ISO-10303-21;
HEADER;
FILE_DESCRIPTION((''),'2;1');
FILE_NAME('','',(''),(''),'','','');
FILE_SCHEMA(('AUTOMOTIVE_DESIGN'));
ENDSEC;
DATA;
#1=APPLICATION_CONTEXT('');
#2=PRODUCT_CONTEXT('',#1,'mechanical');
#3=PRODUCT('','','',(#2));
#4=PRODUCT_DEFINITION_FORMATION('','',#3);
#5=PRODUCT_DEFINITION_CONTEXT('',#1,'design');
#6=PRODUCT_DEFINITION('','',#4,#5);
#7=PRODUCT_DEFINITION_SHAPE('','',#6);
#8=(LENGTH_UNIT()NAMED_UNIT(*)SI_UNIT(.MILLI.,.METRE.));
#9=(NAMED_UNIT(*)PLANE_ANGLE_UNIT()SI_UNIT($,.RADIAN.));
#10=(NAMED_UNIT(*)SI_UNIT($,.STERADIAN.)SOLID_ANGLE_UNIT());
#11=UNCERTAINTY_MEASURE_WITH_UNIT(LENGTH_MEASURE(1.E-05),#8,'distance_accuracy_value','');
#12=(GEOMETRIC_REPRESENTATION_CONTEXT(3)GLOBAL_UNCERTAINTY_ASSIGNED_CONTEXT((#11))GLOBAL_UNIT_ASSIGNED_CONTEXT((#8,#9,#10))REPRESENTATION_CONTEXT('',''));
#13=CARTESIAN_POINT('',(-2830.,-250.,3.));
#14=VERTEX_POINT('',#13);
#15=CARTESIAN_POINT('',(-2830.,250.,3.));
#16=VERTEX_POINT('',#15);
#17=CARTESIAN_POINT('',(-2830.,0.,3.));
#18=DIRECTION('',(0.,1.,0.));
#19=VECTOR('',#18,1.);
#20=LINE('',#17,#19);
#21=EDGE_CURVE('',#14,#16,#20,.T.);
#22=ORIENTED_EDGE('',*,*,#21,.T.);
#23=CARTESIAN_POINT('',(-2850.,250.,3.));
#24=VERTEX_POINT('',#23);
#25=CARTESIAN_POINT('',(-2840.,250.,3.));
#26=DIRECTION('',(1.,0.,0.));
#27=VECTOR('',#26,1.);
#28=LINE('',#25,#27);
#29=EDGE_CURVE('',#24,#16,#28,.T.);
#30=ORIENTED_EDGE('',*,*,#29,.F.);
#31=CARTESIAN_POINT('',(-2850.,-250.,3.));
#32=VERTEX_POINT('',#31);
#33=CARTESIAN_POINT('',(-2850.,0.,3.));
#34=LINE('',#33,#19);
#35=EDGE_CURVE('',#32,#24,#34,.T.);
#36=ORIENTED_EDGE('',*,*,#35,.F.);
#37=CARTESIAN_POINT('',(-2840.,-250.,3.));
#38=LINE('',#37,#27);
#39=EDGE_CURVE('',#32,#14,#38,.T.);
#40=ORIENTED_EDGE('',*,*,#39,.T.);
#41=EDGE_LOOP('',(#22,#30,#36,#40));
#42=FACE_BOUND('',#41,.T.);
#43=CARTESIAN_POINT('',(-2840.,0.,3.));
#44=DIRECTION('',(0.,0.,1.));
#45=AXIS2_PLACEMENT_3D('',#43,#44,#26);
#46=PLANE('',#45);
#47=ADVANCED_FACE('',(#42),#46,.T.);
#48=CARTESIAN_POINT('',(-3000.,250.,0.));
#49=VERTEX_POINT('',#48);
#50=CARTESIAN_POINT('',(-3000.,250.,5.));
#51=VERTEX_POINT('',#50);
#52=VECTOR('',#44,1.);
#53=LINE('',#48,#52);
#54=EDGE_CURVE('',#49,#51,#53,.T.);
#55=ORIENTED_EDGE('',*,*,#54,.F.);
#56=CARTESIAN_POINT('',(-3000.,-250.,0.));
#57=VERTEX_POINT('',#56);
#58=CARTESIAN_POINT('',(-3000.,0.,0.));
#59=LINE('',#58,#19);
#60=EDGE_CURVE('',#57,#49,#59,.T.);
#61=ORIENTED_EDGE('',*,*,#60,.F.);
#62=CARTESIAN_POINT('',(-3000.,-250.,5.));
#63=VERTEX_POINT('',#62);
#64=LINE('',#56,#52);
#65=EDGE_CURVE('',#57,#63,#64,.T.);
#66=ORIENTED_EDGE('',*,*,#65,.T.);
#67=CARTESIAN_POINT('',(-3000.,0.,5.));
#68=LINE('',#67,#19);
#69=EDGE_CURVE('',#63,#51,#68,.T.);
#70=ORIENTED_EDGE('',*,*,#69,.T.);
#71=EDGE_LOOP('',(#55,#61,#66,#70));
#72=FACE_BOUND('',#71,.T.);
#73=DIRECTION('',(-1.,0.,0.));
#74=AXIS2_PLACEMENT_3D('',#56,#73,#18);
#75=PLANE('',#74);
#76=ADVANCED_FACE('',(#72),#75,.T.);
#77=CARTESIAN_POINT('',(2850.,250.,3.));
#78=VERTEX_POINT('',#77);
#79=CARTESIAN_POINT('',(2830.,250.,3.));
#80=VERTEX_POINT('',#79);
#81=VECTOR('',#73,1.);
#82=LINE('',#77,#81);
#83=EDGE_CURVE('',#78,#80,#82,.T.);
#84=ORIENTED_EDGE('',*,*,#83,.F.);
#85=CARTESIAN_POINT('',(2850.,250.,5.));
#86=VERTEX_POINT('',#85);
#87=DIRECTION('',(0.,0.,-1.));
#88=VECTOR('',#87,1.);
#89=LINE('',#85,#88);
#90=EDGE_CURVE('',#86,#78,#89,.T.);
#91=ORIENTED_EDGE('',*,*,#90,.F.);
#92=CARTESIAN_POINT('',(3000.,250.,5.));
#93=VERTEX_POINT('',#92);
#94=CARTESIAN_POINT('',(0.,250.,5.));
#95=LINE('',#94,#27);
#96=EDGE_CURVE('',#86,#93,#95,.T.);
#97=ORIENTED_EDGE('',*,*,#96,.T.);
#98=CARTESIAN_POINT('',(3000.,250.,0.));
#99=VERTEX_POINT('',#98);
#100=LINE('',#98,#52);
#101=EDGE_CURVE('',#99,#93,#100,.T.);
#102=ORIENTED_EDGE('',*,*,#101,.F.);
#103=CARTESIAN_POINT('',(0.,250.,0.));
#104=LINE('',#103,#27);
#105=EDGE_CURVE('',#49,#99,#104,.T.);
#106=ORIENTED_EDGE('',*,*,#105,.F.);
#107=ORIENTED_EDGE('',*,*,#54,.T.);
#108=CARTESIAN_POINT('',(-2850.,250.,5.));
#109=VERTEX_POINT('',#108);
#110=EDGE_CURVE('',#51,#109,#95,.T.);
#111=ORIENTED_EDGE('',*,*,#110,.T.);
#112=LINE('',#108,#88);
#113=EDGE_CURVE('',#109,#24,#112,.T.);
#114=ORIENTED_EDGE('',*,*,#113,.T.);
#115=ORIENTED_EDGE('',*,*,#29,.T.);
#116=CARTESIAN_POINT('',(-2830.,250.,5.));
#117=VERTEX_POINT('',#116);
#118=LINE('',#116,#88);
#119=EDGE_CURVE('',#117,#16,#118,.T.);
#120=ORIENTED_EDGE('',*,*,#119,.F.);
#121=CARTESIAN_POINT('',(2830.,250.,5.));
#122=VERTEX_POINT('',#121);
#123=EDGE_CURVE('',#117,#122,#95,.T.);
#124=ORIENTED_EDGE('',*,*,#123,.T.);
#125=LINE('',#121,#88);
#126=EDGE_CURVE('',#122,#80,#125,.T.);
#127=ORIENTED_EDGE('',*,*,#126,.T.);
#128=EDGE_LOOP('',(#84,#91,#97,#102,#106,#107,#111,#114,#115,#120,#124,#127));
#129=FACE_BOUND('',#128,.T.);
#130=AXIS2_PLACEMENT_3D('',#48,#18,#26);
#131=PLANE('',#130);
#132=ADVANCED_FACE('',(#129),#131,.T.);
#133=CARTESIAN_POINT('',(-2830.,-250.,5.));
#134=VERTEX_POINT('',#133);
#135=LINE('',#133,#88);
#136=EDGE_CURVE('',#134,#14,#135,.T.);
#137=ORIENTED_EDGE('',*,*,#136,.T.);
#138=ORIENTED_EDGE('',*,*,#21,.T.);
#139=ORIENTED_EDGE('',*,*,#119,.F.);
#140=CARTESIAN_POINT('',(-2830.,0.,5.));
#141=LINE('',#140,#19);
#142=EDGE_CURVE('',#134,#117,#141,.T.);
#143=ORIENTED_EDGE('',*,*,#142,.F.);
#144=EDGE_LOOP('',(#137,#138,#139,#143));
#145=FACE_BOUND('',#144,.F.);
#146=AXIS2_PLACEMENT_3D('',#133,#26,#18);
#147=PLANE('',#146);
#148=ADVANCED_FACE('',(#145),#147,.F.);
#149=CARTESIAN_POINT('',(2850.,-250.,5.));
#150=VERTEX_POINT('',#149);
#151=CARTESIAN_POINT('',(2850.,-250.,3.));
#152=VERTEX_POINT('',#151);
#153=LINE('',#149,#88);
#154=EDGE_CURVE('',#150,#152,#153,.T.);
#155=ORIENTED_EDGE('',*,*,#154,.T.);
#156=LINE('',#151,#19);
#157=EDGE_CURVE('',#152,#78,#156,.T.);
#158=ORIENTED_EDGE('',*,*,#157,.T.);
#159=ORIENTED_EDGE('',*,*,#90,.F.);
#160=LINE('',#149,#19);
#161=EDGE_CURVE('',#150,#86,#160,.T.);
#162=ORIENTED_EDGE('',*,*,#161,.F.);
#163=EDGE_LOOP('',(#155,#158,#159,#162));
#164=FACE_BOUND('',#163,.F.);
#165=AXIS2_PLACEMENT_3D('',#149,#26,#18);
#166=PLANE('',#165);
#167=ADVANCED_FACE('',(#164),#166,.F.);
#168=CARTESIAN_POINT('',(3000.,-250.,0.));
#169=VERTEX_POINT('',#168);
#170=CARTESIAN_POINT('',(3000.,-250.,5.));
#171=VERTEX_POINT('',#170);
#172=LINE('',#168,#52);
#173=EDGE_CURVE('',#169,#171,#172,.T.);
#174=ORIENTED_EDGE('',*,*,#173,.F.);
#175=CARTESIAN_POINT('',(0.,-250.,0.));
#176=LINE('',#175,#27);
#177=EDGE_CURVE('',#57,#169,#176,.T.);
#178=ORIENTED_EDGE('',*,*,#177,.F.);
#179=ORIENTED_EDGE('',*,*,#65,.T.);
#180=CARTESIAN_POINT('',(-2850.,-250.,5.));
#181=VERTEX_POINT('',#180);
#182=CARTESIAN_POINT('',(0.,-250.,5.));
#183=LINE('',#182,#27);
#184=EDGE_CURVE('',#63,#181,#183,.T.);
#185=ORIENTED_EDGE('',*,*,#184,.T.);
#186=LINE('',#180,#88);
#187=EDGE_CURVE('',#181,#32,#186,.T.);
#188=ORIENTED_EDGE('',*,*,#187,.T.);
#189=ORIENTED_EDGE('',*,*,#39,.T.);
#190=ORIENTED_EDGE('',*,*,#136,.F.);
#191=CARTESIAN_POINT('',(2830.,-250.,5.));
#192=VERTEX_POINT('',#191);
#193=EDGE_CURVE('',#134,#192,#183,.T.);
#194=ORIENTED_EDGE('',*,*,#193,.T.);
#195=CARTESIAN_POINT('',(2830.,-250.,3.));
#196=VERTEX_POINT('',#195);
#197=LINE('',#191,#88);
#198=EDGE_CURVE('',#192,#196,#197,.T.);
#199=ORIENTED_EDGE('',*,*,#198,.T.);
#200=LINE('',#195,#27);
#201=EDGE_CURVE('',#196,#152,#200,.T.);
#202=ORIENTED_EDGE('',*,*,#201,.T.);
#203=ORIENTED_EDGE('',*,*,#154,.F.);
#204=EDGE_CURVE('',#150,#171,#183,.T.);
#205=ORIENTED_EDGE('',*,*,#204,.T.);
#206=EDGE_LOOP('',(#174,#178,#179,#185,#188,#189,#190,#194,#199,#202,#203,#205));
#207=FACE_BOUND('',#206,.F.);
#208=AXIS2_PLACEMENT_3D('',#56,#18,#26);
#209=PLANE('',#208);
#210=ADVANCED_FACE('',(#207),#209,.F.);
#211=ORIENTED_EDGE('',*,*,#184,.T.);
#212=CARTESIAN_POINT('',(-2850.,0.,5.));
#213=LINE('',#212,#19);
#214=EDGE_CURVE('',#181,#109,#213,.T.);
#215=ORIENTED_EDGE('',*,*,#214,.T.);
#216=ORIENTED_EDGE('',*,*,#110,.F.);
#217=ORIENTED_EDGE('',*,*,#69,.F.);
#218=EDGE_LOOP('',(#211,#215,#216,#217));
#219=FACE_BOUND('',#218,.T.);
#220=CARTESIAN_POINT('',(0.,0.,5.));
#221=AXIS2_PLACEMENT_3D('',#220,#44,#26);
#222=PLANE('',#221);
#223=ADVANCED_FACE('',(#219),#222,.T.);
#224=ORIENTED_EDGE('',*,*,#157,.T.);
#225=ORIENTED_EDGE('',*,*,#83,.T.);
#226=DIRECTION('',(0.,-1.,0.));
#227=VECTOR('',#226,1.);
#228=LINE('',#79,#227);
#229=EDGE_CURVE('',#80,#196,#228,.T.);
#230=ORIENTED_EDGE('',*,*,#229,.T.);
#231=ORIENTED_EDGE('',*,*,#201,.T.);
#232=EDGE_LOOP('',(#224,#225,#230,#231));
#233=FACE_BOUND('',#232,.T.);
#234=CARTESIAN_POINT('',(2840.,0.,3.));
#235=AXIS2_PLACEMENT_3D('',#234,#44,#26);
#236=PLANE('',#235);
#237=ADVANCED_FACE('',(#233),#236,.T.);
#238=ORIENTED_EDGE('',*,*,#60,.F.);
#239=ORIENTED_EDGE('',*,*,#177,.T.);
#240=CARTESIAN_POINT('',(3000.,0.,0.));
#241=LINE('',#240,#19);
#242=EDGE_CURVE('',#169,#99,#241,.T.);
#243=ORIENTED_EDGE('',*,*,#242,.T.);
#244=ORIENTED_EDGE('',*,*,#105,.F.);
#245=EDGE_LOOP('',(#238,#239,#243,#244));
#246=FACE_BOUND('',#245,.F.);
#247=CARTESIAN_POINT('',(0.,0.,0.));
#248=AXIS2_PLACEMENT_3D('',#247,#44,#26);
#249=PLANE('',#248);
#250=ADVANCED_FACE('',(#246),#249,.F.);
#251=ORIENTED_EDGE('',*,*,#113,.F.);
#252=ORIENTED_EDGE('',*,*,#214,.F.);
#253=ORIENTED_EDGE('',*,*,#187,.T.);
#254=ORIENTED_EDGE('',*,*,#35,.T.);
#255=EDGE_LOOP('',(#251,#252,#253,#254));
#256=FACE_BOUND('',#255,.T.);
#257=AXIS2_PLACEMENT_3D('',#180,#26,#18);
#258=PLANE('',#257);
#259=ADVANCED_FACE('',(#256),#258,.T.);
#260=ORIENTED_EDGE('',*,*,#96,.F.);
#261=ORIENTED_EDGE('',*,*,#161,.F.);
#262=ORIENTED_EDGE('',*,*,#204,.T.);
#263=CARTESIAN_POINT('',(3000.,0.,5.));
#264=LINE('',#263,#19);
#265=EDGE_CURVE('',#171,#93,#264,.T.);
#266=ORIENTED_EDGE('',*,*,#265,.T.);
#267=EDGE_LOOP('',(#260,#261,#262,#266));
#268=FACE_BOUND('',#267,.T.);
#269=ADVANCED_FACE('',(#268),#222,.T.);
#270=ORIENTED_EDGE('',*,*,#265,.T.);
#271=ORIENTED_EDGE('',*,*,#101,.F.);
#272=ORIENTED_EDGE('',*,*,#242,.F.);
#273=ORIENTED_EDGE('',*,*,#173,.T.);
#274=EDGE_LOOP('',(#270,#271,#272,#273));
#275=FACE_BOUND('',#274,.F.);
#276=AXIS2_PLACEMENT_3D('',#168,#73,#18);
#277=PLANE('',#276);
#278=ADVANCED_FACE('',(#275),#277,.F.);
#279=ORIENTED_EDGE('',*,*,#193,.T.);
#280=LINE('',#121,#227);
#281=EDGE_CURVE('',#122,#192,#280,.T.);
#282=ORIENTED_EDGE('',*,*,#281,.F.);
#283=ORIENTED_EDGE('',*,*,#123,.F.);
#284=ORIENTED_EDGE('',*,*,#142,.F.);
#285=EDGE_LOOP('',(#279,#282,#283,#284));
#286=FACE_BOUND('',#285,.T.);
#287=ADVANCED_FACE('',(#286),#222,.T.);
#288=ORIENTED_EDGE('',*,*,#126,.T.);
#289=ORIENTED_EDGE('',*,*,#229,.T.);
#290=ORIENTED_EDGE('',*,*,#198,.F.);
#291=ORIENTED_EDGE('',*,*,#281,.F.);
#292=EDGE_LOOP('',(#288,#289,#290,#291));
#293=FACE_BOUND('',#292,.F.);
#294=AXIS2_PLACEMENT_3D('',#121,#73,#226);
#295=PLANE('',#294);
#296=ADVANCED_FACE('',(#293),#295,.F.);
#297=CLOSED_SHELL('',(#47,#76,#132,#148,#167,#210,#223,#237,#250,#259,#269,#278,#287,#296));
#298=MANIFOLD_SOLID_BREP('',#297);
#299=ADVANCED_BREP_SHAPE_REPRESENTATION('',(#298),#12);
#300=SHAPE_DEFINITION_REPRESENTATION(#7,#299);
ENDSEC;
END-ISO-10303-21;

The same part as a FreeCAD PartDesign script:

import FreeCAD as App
import Part
import Sketcher
from FreeCAD import Vector

doc = App.newDocument("Part")
body = doc.addObject("PartDesign::Body", "Body")

# Sketch on XY plane
sketch1 = body.newObject("Sketcher::SketchObject", "Sketch")
sketch1.AttachmentSupport = (doc.getObject("XY_Plane"), [""])
sketch1.MapMode = "FlatFace"
sketch1.addGeometry(Part.LineSegment(Vector(-3000, 250, 0), Vector(-3000, -250, 0)), False)
sketch1.addGeometry(Part.LineSegment(Vector(-3000, -250, 0), Vector(3000, -250, 0)), False)
sketch1.addGeometry(Part.LineSegment(Vector(3000, -250, 0), Vector(3000, 250, 0)), False)
sketch1.addGeometry(Part.LineSegment(Vector(3000, 250, 0), Vector(-3000, 250, 0)), False)
sketch1.addConstraint(Sketcher.Constraint("Coincident", 0, 2, 1, 1))
sketch1.addConstraint(Sketcher.Constraint("Coincident", 1, 2, 2, 1))
sketch1.addConstraint(Sketcher.Constraint("Coincident", 2, 2, 3, 1))
sketch1.addConstraint(Sketcher.Constraint("Coincident", 3, 2, 0, 1))
sketch1.addConstraint(Sketcher.Constraint("Vertical", 0))
sketch1.addConstraint(Sketcher.Constraint("Horizontal", 1))
sketch1.addConstraint(Sketcher.Constraint("Vertical", 2))
sketch1.addConstraint(Sketcher.Constraint("Horizontal", 3))
sketch1.addConstraint(Sketcher.Constraint("Symmetric", 0, 2, 2, 2, -1, 1))
sketch1.addConstraint(Sketcher.Constraint("DistanceX", 1, 1, 1, 2, 6000.0))
sketch1.addConstraint(Sketcher.Constraint("DistanceY", 0, 2, 0, 1, 500.0))
pad1 = body.newObject("PartDesign::Pad", "Pad")
pad1.Profile = sketch1
pad1.Length = 5

# Sketch on XY plane
sketch2 = body.newObject("Sketcher::SketchObject", "Sketch001")
sketch2.AttachmentSupport = (doc.getObject("XY_Plane"), [""])
sketch2.MapMode = "FlatFace"
sketch2.AttachmentOffset = App.Placement(Vector(0, 0, 5), App.Rotation())
sketch2.addGeometry(Part.LineSegment(Vector(-2850, 250, 0), Vector(-2850, -250, 0)), False)
sketch2.addGeometry(Part.LineSegment(Vector(-2850, -250, 0), Vector(-2830, -250, 0)), False)
sketch2.addGeometry(Part.LineSegment(Vector(-2830, -250, 0), Vector(-2830, 250, 0)), False)
sketch2.addGeometry(Part.LineSegment(Vector(-2830, 250, 0), Vector(-2850, 250, 0)), False)
sketch2.addGeometry(Part.LineSegment(Vector(2850, -250, 0), Vector(2850, 250, 0)), False)
sketch2.addGeometry(Part.LineSegment(Vector(2850, 250, 0), Vector(2830, 250, 0)), False)
sketch2.addGeometry(Part.LineSegment(Vector(2830, 250, 0), Vector(2830, -250, 0)), False)
sketch2.addGeometry(Part.LineSegment(Vector(2830, -250, 0), Vector(2850, -250, 0)), False)
sketch2.addConstraint(Sketcher.Constraint("Coincident", 0, 2, 1, 1))
sketch2.addConstraint(Sketcher.Constraint("Coincident", 1, 2, 2, 1))
sketch2.addConstraint(Sketcher.Constraint("Coincident", 2, 2, 3, 1))
sketch2.addConstraint(Sketcher.Constraint("Coincident", 3, 2, 0, 1))
sketch2.addConstraint(Sketcher.Constraint("Coincident", 4, 2, 5, 1))
sketch2.addConstraint(Sketcher.Constraint("Coincident", 5, 2, 6, 1))
sketch2.addConstraint(Sketcher.Constraint("Coincident", 6, 2, 7, 1))
sketch2.addConstraint(Sketcher.Constraint("Coincident", 7, 2, 4, 1))
sketch2.addConstraint(Sketcher.Constraint("Vertical", 0))
sketch2.addConstraint(Sketcher.Constraint("Horizontal", 1))
sketch2.addConstraint(Sketcher.Constraint("Vertical", 2))
sketch2.addConstraint(Sketcher.Constraint("Horizontal", 3))
sketch2.addConstraint(Sketcher.Constraint("Vertical", 4))
sketch2.addConstraint(Sketcher.Constraint("Horizontal", 5))
sketch2.addConstraint(Sketcher.Constraint("Vertical", 6))
sketch2.addConstraint(Sketcher.Constraint("Horizontal", 7))
sketch2.addConstraint(Sketcher.Constraint("Symmetric", 0, 2, 4, 2, -1, 1))
sketch2.addConstraint(Sketcher.Constraint("Symmetric", 2, 2, 6, 2, -1, 1))
sketch2.addConstraint(Sketcher.Constraint("Horizontal", 3, 2, 4, 2))
sketch2.addConstraint(Sketcher.Constraint("DistanceX", 1, 1, 1, 2, 20.0))
sketch2.addConstraint(Sketcher.Constraint("DistanceY", 0, 2, 0, 1, 500.0))
sketch2.addConstraint(Sketcher.Constraint("DistanceX", 0, 2, -1, 1, 2850.0))
pocket1 = body.newObject("PartDesign::Pocket", "Pocket")
pocket1.Profile = sketch2
pocket1.Length = 2

doc.recompute()
